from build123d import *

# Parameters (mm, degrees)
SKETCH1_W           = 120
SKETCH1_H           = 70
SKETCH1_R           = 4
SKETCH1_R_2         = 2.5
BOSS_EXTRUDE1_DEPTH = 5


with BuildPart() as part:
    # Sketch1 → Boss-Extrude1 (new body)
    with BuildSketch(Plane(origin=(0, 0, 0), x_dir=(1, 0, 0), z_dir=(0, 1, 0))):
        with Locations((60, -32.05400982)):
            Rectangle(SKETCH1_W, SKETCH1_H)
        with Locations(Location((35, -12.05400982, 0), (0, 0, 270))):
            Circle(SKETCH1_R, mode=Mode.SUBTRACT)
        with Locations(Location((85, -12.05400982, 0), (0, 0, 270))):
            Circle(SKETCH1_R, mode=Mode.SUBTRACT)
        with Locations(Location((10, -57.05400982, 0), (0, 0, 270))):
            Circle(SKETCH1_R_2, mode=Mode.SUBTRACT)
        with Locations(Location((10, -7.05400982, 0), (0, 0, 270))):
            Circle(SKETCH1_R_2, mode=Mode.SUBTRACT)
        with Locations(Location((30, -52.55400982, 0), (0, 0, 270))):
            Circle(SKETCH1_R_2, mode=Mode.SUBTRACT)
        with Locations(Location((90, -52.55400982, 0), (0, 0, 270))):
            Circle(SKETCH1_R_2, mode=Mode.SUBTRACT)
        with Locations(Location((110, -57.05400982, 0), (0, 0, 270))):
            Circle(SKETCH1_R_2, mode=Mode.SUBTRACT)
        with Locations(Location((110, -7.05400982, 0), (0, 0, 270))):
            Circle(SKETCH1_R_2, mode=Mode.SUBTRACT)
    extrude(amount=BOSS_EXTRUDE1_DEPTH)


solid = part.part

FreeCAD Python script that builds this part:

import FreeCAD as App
import Part
import Sketcher

doc = App.newDocument("Part")
params = doc.addObject("Spreadsheet::Sheet", "Params")
for row, (alias, value) in enumerate([
    ("sketch1_diameter", "5 mm"),
    ("sketch1_diameter2", "8 mm"),
    ("sketch1_width", "120 mm"),
    ("sketch1_height", "70 mm"),
    ("pad1_length", "5 mm"),
], start=1):
    params.set(f"A{row}", alias)
    params.set(f"B{row}", "=" + value)
    params.setAlias(f"B{row}", alias)

body = doc.addObject("PartDesign::Body", "Body")

# Sketch on XZ plane
sketch1 = body.newObject("Sketcher::SketchObject", "Sketch")
sketch1.AttachmentSupport = (doc.getObject("XZ_Plane"), [""])
sketch1.MapMode = "FlatFace"
sketch1.addGeometry(Part.LineSegment(App.Vector(0, -2.9, 0), App.Vector(0, 67.1, 0)), False)
sketch1.addGeometry(Part.LineSegment(App.Vector(0, 67.1, 0), App.Vector(120, 67.1, 0)), False)
sketch1.addGeometry(Part.LineSegment(App.Vector(120, 67.1, 0), App.Vector(120, -2.9, 0)), False)
sketch1.addGeometry(Part.LineSegment(App.Vector(120, -2.9, 0), App.Vector(0, -2.9, 0)), False)
sketch1.addGeometry(Part.Circle(App.Vector(10, 57.1, 0), App.Vector(0, 0, 1), 2.5), False)
sketch1.addGeometry(Part.Circle(App.Vector(30, 52.6, 0), App.Vector(0, 0, 1), 2.5), False)
sketch1.addGeometry(Part.Circle(App.Vector(110, 57.1, 0), App.Vector(0, 0, 1), 2.5), False)
sketch1.addGeometry(Part.Circle(App.Vector(90, 52.6, 0), App.Vector(0, 0, 1), 2.5), False)
sketch1.addGeometry(Part.Circle(App.Vector(10, 7.1, 0), App.Vector(0, 0, 1), 2.5), False)
sketch1.addGeometry(Part.Circle(App.Vector(35, 12.1, 0), App.Vector(0, 0, 1), 4), False)
sketch1.addGeometry(Part.Circle(App.Vector(85, 12.1, 0), App.Vector(0, 0, 1), 4), False)
sketch1.addGeometry(Part.Circle(App.Vector(110, 7.1, 0), App.Vector(0, 0, 1), 2.5), False)
sketch1.addConstraint(Sketcher.Constraint("Coincident", 0, 2, 1, 1))
sketch1.addConstraint(Sketcher.Constraint("Coincident", 1, 2, 2, 1))
sketch1.addConstraint(Sketcher.Constraint("Coincident", 2, 2, 3, 1))
sketch1.addConstraint(Sketcher.Constraint("Coincident", 3, 2, 0, 1))
sketch1.addConstraint(Sketcher.Constraint("Vertical", 0))
sketch1.addConstraint(Sketcher.Constraint("Horizontal", 1))
sketch1.addConstraint(Sketcher.Constraint("Vertical", 2))
sketch1.addConstraint(Sketcher.Constraint("Horizontal", 3))
sketch1.addConstraint(Sketcher.Constraint("Equal", 4, 5))
sketch1.addConstraint(Sketcher.Constraint("Equal", 5, 6))
sketch1.addConstraint(Sketcher.Constraint("Equal", 6, 7))
sketch1.addConstraint(Sketcher.Constraint("Equal", 7, 8))
sketch1.addConstraint(Sketcher.Constraint("Equal", 9, 10))
sketch1.addConstraint(Sketcher.Constraint("Equal", 8, 11))
sketch1.addConstraint(Sketcher.Constraint("PointOnObject", 0, 2, -2))
sketch1.addConstraint(Sketcher.Constraint("Horizontal", 4, 3, 6, 3))
sketch1.addConstraint(Sketcher.Constraint("Horizontal", 5, 3, 7, 3))
sketch1.addConstraint(Sketcher.Constraint("Horizontal", 9, 3, 10, 3))
sketch1.addConstraint(Sketcher.Constraint("Horizontal", 8, 3, 11, 3))
sketch1.addConstraint(Sketcher.Constraint("Vertical", 4, 3, 8, 3))
sketch1.addConstraint(Sketcher.Constraint("Vertical", 6, 3, 11, 3))
sketch1.addConstraint(Sketcher.Constraint("Diameter", 4, 5.0))
sketch1.addConstraint(Sketcher.Constraint("Diameter", 9, 8.0))
sketch1.addConstraint(Sketcher.Constraint("DistanceX", 1, 1, 1, 2, 120.0))
sketch1.addConstraint(Sketcher.Constraint("DistanceY", 0, 1, 0, 2, 70.0))
sketch1.addConstraint(Sketcher.Constraint("DistanceX", -1, 1, 4, 3, 10.0))
sketch1.addConstraint(Sketcher.Constraint("DistanceX", -1, 1, 5, 3, 30.0))
sketch1.addConstraint(Sketcher.Constraint("DistanceX", -1, 1, 6, 3, 110.0))
sketch1.addConstraint(Sketcher.Constraint("DistanceX", -1, 1, 7, 3, 90.0))
sketch1.addConstraint(Sketcher.Constraint("DistanceX", -1, 1, 9, 3, 35.0))
sketch1.addConstraint(Sketcher.Constraint("DistanceX", -1, 1, 10, 3, 85.0))
sketch1.addConstraint(Sketcher.Constraint("DistanceY", 8, 3, 4, 3, 50.0))
sketch1.addConstraint(Sketcher.Constraint("DistanceY", 8, 3, 9, 3, 5.0))
sketch1.addConstraint(Sketcher.Constraint("DistanceY", 4, 3, 0, 2, 10.0))
sketch1.addConstraint(Sketcher.Constraint("DistanceY", 5, 3, 4, 3, 4.5))
sketch1.addConstraint(Sketcher.Constraint("DistanceY", -1, 1, 4, 3, 57.05401))
sketch1.setExpression("Constraints[21]", "Params.sketch1_diameter")
sketch1.setExpression("Constraints[22]", "Params.sketch1_diameter2")
sketch1.setExpression("Constraints[23]", "Params.sketch1_width")
sketch1.setExpression("Constraints[24]", "Params.sketch1_height")
pad1 = body.newObject("PartDesign::Pad", "Pad")
pad1.Profile = sketch1
pad1.setExpression("Length", "Params.pad1_length")
pad1.Reversed = True

doc.recompute()
